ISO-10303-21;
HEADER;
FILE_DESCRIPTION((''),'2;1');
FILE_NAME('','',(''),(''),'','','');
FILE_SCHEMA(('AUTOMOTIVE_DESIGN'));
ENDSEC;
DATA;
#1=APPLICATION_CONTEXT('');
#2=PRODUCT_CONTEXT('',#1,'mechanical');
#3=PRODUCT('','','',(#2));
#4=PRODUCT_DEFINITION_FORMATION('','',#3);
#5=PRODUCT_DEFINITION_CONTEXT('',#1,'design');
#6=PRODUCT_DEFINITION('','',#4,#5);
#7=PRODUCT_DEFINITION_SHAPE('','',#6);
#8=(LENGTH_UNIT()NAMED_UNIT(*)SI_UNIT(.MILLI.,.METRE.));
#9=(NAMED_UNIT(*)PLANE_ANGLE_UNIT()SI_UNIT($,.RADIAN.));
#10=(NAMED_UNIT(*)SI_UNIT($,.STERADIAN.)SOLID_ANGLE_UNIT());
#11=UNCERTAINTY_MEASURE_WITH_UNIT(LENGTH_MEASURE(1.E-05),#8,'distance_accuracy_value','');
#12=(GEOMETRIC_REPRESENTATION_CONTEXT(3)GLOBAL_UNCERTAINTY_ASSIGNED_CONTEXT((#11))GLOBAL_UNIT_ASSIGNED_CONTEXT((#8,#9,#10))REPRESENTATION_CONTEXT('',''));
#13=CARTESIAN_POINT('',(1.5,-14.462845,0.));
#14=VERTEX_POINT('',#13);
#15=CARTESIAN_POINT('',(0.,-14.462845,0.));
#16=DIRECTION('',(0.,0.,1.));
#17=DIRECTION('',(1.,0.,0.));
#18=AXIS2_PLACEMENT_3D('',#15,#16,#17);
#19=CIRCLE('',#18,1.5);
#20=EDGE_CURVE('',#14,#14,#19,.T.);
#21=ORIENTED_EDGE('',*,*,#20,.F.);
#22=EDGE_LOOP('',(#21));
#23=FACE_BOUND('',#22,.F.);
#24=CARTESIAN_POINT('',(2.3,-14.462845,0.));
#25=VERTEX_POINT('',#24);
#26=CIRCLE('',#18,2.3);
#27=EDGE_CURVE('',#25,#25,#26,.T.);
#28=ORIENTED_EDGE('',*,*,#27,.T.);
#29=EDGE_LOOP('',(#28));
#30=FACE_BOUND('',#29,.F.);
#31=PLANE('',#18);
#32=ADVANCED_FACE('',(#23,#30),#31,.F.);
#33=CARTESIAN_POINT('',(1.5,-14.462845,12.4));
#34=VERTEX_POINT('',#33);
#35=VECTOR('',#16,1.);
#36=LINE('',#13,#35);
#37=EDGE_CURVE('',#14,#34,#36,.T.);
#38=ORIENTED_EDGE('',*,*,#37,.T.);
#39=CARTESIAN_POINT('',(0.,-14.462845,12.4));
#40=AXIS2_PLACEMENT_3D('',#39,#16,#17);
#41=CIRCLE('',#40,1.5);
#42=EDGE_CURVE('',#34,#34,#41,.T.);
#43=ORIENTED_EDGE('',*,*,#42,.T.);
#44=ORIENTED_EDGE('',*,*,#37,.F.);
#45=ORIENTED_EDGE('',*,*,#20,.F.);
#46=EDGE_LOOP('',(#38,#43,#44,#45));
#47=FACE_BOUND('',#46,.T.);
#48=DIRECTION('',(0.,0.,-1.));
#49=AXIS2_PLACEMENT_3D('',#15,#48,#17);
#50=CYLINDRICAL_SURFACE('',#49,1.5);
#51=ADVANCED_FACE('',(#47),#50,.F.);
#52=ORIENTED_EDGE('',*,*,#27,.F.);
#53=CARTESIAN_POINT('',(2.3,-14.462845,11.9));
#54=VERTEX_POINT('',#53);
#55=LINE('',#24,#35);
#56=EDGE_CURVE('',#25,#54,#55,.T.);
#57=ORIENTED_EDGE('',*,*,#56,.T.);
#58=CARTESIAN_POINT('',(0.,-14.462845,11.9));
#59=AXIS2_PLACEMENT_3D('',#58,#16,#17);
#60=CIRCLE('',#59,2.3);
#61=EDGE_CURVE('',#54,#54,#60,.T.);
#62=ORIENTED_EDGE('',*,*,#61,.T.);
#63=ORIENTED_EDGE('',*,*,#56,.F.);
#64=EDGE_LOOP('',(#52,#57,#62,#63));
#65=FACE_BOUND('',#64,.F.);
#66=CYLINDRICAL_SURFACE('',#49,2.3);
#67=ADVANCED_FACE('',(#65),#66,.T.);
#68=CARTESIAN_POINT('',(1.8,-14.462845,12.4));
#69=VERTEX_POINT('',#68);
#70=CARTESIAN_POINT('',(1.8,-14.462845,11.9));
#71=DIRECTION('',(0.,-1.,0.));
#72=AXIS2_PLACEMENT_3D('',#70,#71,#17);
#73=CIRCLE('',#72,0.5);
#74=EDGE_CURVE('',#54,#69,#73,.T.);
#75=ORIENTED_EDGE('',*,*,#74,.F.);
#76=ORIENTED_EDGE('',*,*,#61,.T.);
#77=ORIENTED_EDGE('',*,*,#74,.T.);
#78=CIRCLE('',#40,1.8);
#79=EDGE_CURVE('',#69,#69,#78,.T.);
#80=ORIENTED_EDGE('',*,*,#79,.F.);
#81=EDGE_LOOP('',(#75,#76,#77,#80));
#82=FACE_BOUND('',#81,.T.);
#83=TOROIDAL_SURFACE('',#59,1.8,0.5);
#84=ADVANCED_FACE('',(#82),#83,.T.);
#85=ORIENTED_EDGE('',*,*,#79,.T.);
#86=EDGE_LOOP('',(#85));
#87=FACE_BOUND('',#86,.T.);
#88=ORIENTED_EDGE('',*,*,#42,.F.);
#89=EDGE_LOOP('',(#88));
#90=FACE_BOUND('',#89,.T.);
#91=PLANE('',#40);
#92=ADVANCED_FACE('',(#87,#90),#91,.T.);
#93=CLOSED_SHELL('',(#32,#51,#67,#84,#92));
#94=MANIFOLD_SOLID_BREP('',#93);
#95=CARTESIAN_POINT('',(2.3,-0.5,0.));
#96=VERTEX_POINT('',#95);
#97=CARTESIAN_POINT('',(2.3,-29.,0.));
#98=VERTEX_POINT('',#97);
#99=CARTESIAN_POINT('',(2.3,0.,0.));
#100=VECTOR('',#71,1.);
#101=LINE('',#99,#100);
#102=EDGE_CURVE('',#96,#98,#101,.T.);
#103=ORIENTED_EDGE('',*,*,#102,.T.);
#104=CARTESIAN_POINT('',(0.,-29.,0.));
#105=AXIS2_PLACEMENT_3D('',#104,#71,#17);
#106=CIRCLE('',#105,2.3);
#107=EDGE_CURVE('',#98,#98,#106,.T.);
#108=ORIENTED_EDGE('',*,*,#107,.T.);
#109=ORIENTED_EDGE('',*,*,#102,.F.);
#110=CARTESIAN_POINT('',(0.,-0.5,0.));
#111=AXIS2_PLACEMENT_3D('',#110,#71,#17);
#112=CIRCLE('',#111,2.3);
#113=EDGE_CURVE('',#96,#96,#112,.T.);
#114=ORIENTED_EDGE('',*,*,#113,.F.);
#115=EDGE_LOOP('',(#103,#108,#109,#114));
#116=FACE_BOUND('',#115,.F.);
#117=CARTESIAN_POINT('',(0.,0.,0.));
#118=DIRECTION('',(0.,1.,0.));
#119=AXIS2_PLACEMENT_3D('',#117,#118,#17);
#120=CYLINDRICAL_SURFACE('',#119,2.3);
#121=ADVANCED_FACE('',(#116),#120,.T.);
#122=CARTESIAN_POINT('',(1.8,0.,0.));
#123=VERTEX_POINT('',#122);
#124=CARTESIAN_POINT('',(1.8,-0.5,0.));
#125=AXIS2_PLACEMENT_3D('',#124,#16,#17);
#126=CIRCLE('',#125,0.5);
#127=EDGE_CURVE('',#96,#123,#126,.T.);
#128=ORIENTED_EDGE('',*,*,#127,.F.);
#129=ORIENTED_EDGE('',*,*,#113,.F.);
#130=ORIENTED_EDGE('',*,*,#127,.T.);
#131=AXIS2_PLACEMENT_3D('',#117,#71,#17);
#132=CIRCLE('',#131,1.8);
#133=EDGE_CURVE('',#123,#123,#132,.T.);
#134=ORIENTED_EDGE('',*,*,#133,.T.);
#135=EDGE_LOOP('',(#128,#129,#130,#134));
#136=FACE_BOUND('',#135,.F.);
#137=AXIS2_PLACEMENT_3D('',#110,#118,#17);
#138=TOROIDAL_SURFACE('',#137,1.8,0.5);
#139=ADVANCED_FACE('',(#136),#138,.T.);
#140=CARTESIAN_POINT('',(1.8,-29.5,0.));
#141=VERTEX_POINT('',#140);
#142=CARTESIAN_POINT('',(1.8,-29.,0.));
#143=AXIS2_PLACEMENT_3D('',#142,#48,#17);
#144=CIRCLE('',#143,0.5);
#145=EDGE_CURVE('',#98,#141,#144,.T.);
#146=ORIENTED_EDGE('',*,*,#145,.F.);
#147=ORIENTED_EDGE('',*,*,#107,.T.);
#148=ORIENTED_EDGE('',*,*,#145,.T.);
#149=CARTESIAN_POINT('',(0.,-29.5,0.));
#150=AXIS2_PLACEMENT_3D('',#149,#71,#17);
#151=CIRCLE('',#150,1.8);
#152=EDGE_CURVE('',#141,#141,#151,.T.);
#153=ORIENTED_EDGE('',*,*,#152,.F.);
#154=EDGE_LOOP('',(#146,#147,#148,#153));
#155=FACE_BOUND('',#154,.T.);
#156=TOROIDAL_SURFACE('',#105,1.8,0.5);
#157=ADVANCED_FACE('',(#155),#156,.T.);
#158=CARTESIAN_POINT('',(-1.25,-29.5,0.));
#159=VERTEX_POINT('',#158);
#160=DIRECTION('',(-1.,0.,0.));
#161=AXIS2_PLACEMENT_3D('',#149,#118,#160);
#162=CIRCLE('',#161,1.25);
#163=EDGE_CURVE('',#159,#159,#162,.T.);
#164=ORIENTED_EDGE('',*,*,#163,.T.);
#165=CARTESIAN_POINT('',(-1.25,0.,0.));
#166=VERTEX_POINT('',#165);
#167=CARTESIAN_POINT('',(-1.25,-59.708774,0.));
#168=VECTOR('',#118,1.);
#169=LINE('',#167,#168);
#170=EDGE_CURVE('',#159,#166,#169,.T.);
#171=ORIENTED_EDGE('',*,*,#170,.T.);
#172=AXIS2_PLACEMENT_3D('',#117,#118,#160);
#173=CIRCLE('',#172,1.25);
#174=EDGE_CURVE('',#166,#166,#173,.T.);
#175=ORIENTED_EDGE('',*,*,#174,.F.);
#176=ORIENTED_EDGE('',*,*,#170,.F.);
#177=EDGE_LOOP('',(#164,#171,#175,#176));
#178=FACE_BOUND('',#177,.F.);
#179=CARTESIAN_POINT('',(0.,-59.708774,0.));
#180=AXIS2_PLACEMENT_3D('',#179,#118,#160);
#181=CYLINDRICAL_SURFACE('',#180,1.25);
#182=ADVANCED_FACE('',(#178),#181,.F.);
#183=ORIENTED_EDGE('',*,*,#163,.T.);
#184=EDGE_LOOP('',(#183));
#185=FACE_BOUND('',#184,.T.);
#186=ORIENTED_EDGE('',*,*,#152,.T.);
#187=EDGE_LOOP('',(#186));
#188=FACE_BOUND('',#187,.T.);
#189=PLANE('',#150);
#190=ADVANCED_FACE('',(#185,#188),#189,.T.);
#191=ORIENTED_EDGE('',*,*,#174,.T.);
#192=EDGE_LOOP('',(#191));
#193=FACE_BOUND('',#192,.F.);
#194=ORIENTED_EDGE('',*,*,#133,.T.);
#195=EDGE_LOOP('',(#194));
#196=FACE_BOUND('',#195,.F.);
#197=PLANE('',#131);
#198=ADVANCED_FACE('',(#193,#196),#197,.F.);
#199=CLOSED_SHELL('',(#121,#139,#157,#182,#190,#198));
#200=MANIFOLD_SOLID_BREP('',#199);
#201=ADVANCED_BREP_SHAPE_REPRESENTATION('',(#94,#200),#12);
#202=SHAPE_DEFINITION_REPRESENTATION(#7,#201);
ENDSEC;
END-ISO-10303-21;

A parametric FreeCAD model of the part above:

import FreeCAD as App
import Part
import Sketcher
from FreeCAD import Vector
Q = App.Units.Quantity


def edges_at(feature, points):
    """Names of the edges that pass closest to the given points."""
    edges = feature.Shape.Edges
    near = lambda p: min(range(len(edges)), key=lambda i: edges[i].distToShape(Part.Vertex(*p))[0])
    return sorted({f"Edge{near(p) + 1}" for p in points})

doc = App.newDocument("Part")
body = doc.addObject("PartDesign::Body", "Body")

# Sketch on XZ plane
sketch1 = doc.addObject("Sketcher::SketchObject", "Sketch")
body.addObject(sketch1)
sketch1.AttachmentSupport = (doc.XZ_Plane, [""])
sketch1.MapMode = "FlatFace"
sketch1.addGeometry(Part.Circle(Vector(0, 0, 0), Vector(0, 0, 1), 2.3), False)
sketch1.addConstraint(Sketcher.Constraint("Coincident", 0, 3, -1, 1))
sketch1.addConstraint(Sketcher.Constraint("Diameter", 0, Q("4.6 mm")))
pad1 = doc.addObject("PartDesign::Pad", "Pad")
body.addObject(pad1)
pad1.Profile = sketch1
pad1.Length = 29.5

# Sketch on XZ plane
sketch2 = doc.addObject("Sketcher::SketchObject", "Sketch001")
body.addObject(sketch2)
sketch2.AttachmentSupport = (doc.XZ_Plane, [""])
sketch2.MapMode = "FlatFace"
sketch2.AttachmentOffset = App.Placement(Vector(0, 0, 29.5), App.Rotation())
sketch2.addGeometry(Part.Circle(Vector(0, 0, 0), Vector(0, 0, 1), 1.2), False)
sketch2.addConstraint(Sketcher.Constraint("Coincident", 0, 3, -1, 1))
sketch2.addConstraint(Sketcher.Constraint("Diameter", 0, Q("2.5 mm")))
doc.recompute()
hole = doc.addObject("PartDesign::Hole", "Hole")
body.addObject(hole)
hole.Profile = sketch2
hole.ThreadType = "None"
hole.Diameter = 2.5
hole.DepthType = "ThroughAll"
doc.recompute()

fillet = doc.addObject("PartDesign::Fillet", "Fillet")
body.addObject(fillet)
fillet.Base = (hole, edges_at(hole, [(-2.3, -29.5, 0)]))
fillet.Radius = 0.5
doc.recompute()

fillet2 = doc.addObject("PartDesign::Fillet", "Fillet001")
body.addObject(fillet2)
fillet2.Base = (fillet, edges_at(fillet, [(-2.3, 0, 0)]))
fillet2.Radius = 0.5
body2 = doc.addObject("PartDesign::Body", "Body001")

# Sketch on XY plane
sketch3 = doc.addObject("Sketcher::SketchObject", "Sketch002")
body2.addObject(sketch3)
sketch3.AttachmentSupport = (doc.getObject("XY_Plane001"), [""])
sketch3.MapMode = "FlatFace"
sketch3.addGeometry(Part.Circle(Vector(0, -14.5, 0), Vector(0, 0, 1), 2.3), False)
sketch3.addConstraint(Sketcher.Constraint("PointOnObject", 0, 3, -2))
sketch3.addConstraint(Sketcher.Constraint("Diameter", 0, Q("4.6 mm")))
sketch3.addConstraint(Sketcher.Constraint("DistanceY", 0, 3, -1, 1, Q("14.462845 mm")))
pad2 = doc.addObject("PartDesign::Pad", "Pad001")
body2.addObject(pad2)
pad2.Profile = sketch3
pad2.Length = 12.4

# Sketch on XY plane
sketch4 = doc.addObject("Sketcher::SketchObject", "Sketch003")
body2.addObject(sketch4)
sketch4.AttachmentSupport = (doc.getObject("XY_Plane001"), [""])
sketch4.MapMode = "FlatFace"
sketch4.addGeometry(Part.Circle(Vector(0, -14.5, 0), Vector(0, 0, 1), 1.5), False)
sketch4.addConstraint(Sketcher.Constraint("PointOnObject", 0, 3, -2))
sketch4.addConstraint(Sketcher.Constraint("Diameter", 0, Q("3 mm")))
sketch4.addConstraint(Sketcher.Constraint("DistanceY", 0, 3, -1, 1, Q("14.462845 mm")))
pocket1 = doc.addObject("PartDesign::Pocket", "Pocket")
body2.addObject(pocket1)
pocket1.Profile = sketch4
pocket1.Length = 12.4
pocket1.Reversed = True
doc.recompute()

fillet3 = doc.addObject("PartDesign::Fillet", "Fillet002")
body2.addObject(fillet3)
fillet3.Base = (pocket1, edges_at(pocket1, [(-2.3, -14.463, 12.4)]))
fillet3.Radius = 0.5

doc.recompute()
